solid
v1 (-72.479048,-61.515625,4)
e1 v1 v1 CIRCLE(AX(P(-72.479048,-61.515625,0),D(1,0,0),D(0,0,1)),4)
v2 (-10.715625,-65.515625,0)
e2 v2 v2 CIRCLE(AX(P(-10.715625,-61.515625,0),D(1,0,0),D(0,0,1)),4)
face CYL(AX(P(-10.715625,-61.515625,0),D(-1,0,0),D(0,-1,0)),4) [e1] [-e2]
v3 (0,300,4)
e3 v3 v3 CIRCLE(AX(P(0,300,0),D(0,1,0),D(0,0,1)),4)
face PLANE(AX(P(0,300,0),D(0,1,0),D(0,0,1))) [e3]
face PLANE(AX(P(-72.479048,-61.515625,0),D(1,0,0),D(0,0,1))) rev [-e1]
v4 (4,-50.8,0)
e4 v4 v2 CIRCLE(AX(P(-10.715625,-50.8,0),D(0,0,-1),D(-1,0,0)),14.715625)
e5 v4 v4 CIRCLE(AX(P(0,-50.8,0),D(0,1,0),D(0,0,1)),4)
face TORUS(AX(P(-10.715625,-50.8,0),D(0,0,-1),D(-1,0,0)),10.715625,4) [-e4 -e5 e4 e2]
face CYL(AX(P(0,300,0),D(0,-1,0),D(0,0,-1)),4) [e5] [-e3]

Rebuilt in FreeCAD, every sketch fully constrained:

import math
import FreeCAD as App
import Part
import Sketcher
from FreeCAD import Vector
Q = App.Units.Quantity

doc = App.newDocument("Part")
params = doc.addObject("Spreadsheet::Sheet", "Params")
for row, (alias, value) in enumerate([
    ("sketch1_diameter", "8 mm"),
    ("sketch2_height", "350.8 mm"),
], start=1):
    params.set(f"A{row}", alias)
    params.set(f"B{row}", "=" + value)
    params.setAlias(f"B{row}", alias)

body = doc.addObject("PartDesign::Body", "Body")

# Sketch on XZ plane
sketch1 = body.newObject("Sketcher::SketchObject", "Sketch")
sketch1.AttachmentSupport = (doc.getObject("XZ_Plane"), [""])
sketch1.MapMode = "FlatFace"
sketch1.AttachmentOffset = App.Placement(Vector(0, 0, -300), App.Rotation())
sketch1.addGeometry(Part.Circle(Vector(0, 0, 0), Vector(0, 0, 1), 4), False)
sketch1.addConstraint([
    Sketcher.Constraint("Coincident", 0, 3, -1, 1),
    Sketcher.Constraint("Diameter", 0, Q("8 mm")),
])
sketch1.setExpression("Constraints[1]", "Params.sketch1_diameter")

# Sketch on XY plane
sketch2 = body.newObject("Sketcher::SketchObject", "Sketch001")
sketch2.AttachmentSupport = (doc.getObject("XY_Plane"), [""])
sketch2.MapMode = "FlatFace"
sketch2.addGeometry([
    Part.LineSegment(Vector(0, 300, 0), Vector(0, -51, 0)),
    Part.ArcOfCircle(Part.Circle(Vector(-11, -51, 0), Vector(0, 0, 1), 11), math.radians(-90), math.radians(0)),
    Part.LineSegment(Vector(-11, -62, 0), Vector(-72, -62, 0)),
], False)
sketch2.addConstraint([
    Sketcher.Constraint("Tangent", 0, 2, 1, 2),
    Sketcher.Constraint("Tangent", 1, 1, 2, 1),
    Sketcher.Constraint("Vertical", 0),
    Sketcher.Constraint("Horizontal", 2),
    Sketcher.Constraint("PointOnObject", 0, 1, -2),
    Sketcher.Constraint("DistanceY", 0, 2, 0, 1, Q("350.8 mm")),
    Sketcher.Constraint("DistanceY", -1, 1, 0, 1, Q("300 mm")),
    Sketcher.Constraint("Radius", 1, Q("10.715625 mm")),
    Sketcher.Constraint("DistanceX", 2, 2, 2, 1, Q("61.763423 mm")),
])
sketch2.setExpression("Constraints[5]", "Params.sketch2_height")
doc.recompute()

additivepipe = body.newObject("PartDesign::AdditivePipe", "AdditivePipe")
additivepipe.Profile = sketch1
additivepipe.Spine = (sketch2, ["Edge1", "Edge2", "Edge3"])

doc.recompute()
